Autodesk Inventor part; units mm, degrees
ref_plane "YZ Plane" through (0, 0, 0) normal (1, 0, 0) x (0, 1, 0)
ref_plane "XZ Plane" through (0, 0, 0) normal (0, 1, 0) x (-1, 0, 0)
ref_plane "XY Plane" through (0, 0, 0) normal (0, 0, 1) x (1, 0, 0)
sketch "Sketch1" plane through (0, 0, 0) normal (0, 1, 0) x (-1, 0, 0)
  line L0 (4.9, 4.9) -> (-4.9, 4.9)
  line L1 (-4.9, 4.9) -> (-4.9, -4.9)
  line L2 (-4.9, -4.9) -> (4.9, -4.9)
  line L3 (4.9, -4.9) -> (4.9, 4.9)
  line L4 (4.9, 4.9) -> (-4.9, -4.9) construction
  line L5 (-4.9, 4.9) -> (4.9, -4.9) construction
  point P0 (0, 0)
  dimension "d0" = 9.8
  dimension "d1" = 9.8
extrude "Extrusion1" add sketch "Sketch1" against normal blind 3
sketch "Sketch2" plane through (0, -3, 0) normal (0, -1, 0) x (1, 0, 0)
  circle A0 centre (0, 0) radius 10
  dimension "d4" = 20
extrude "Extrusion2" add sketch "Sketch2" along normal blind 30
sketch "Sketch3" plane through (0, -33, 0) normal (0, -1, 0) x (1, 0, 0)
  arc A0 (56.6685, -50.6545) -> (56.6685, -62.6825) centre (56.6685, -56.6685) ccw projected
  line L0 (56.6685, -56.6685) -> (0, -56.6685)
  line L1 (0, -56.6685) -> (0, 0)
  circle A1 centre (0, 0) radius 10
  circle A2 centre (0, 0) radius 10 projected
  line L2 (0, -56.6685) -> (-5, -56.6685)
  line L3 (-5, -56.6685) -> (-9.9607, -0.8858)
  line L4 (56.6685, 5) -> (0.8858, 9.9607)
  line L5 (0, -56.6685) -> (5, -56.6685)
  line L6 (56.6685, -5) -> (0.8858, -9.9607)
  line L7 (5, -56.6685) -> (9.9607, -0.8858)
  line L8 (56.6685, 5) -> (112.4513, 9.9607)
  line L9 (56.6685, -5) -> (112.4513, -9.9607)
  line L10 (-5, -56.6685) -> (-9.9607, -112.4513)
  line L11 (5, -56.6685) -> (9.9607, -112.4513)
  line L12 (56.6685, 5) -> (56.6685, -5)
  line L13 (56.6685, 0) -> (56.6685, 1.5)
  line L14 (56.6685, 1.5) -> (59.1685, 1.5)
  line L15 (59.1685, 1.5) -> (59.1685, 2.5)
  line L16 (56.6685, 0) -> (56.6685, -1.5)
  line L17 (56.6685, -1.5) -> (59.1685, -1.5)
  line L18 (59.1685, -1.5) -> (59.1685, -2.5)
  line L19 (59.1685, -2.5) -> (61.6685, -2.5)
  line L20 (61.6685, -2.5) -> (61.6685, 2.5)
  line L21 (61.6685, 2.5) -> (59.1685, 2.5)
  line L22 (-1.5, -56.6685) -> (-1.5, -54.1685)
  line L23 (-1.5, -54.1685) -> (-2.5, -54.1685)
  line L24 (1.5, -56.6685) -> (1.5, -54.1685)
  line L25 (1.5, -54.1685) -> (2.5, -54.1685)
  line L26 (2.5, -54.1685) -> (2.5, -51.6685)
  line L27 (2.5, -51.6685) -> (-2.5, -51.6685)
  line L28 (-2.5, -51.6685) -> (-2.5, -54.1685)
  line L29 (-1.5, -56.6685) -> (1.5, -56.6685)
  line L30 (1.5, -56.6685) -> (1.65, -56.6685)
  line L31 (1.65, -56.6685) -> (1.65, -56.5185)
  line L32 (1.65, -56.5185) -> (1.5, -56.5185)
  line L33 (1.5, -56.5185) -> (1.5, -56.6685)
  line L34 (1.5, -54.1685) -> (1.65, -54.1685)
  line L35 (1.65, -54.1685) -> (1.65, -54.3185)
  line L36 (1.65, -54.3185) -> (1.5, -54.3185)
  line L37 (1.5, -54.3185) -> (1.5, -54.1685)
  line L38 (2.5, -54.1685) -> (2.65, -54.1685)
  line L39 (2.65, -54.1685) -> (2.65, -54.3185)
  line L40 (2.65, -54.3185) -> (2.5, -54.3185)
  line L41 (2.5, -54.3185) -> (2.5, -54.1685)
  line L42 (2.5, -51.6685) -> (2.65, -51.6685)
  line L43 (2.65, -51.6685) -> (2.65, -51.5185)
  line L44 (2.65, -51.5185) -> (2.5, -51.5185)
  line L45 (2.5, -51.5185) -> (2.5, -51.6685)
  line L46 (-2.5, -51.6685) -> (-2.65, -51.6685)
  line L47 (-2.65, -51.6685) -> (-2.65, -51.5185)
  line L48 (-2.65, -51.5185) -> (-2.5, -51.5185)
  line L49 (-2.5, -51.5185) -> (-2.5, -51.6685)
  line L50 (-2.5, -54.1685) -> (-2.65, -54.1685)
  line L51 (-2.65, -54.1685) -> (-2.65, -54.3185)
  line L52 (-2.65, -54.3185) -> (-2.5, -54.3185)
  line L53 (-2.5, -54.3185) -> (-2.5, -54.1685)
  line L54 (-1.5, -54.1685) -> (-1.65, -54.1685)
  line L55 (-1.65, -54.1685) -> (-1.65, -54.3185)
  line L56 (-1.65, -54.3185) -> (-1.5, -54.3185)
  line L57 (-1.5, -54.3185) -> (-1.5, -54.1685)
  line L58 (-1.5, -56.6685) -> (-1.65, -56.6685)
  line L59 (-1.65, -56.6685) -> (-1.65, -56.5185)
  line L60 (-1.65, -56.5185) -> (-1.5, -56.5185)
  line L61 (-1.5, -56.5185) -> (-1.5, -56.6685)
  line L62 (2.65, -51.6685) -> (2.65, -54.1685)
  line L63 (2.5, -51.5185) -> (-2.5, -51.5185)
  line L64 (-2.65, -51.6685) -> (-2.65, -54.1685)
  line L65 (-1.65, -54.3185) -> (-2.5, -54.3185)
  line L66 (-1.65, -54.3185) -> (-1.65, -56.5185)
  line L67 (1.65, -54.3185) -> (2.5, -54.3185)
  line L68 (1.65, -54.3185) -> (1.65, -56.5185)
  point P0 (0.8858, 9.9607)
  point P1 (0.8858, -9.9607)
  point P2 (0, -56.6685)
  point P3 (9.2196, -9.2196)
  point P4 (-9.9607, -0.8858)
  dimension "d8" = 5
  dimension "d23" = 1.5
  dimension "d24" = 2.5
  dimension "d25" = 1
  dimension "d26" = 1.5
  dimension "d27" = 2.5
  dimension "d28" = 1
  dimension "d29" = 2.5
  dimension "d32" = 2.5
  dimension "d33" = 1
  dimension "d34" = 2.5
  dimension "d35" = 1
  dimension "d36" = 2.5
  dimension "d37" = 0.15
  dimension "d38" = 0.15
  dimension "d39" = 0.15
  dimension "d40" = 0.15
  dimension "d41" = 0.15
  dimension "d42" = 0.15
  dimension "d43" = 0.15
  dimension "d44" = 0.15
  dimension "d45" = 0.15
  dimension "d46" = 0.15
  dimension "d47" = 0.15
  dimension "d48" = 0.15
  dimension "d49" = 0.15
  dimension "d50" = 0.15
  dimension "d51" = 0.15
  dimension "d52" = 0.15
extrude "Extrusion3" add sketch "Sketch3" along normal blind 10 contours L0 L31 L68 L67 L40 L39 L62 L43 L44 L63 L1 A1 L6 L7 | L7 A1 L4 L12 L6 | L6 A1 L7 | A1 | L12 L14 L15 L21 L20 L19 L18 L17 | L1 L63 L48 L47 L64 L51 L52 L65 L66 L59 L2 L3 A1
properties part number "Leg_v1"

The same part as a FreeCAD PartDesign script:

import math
import FreeCAD as App
import Part
import Sketcher

V = App.Vector
Q = App.Units.Quantity


def add_polygon(sketch, points):
    """Adds a closed chain of lines whose ends are joined by coincident constraints."""
    first, n = sketch.GeometryCount, len(points)
    for a, b in zip(points, points[1:] + points[:1]):
        sketch.addGeometry(Part.LineSegment(App.Vector(*a, 0), App.Vector(*b, 0)), False)
    for i in range(n):
        sketch.addConstraint(Sketcher.Constraint("Coincident", first + i, 2, first + (i + 1) % n, 1))

doc = App.newDocument("Part")
params = doc.addObject("Spreadsheet::Sheet", "Params")
for row, (alias, value) in enumerate([
    ("sketch1_width", "9.8 mm"),
    ("pad1_length", "3 mm"),
    ("sketch2_diameter", "20 mm"),
    ("pad2_length", "30 mm"),
    ("sketch3_width", "1 mm"),
    ("sketch3_height", "5 mm"),
    ("sketch3_width2", "2.5 mm"),
    ("sketch3_radius", "10 mm"),
    ("sketch3_width3", "5.3 mm"),
    ("pad3_length", "10 mm"),
], start=1):
    params.set(f"A{row}", alias)
    params.set(f"B{row}", "=" + value)
    params.setAlias(f"B{row}", alias)

body = doc.addObject("PartDesign::Body", "Body")

# Sketch on XZ plane
sketch1 = body.newObject("Sketcher::SketchObject", "Sketch")
sketch1.AttachmentSupport = (doc.getObject("XZ_Plane"), [""])
sketch1.MapMode = "FlatFace"
add_polygon(sketch1, [(-5, -5), (-5, 5), (5, 5), (5, -5)])  # lines 0-3
sketch1.addConstraint(Sketcher.Constraint("Vertical", 0))
sketch1.addConstraint(Sketcher.Constraint("Horizontal", 1))
sketch1.addConstraint(Sketcher.Constraint("Vertical", 2))
sketch1.addConstraint(Sketcher.Constraint("Horizontal", 3))
sketch1.addConstraint(Sketcher.Constraint("Symmetric", 0, 2, 2, 2, -1, 1))
sketch1.addConstraint(Sketcher.Constraint("Equal", 3, 0))
sketch1.addConstraint(Sketcher.Constraint("DistanceX", 1, 1, 1, 2, Q("9.8 mm")))
sketch1.setExpression("Constraints[10]", "Params.sketch1_width")
pad1 = body.newObject("PartDesign::Pad", "Pad")
pad1.Profile = sketch1
pad1.setExpression("Length", "Params.pad1_length")

# Sketch on XZ plane
sketch2 = body.newObject("Sketcher::SketchObject", "Sketch001")
sketch2.AttachmentSupport = (doc.getObject("XZ_Plane"), [""])
sketch2.MapMode = "FlatFace"
sketch2.AttachmentOffset = App.Placement(V(0, 0, 3), App.Rotation())
sketch2.addGeometry(Part.Circle(V(0, 0, 0), V(0, 0, 1), 10), False)
sketch2.addConstraint(Sketcher.Constraint("Coincident", 0, 3, -1, 1))
sketch2.addConstraint(Sketcher.Constraint("Diameter", 0, Q("20 mm")))
sketch2.setExpression("Constraints[1]", "Params.sketch2_diameter")
pad2 = body.newObject("PartDesign::Pad", "Pad001")
pad2.Profile = sketch2
pad2.setExpression("Length", "Params.pad2_length")

# Sketch on XZ plane
sketch3 = body.newObject("Sketcher::SketchObject", "Sketch002")
sketch3.AttachmentSupport = (doc.getObject("XZ_Plane"), [""])
sketch3.MapMode = "FlatFace"
sketch3.AttachmentOffset = App.Placement(V(0, 0, 33), App.Rotation())
sketch3.addGeometry(Part.LineSegment(V(1.6, -56.7, 0), V(5, -56.7, 0)), False)
sketch3.addGeometry(Part.LineSegment(V(5, -56.7, 0), V(9.2, -9.2, 0)), False)
sketch3.addGeometry(Part.LineSegment(V(9.2, -9.2, 0), V(56.7, -5, 0)), False)
sketch3.addGeometry(Part.LineSegment(V(56.7, -5, 0), V(56.7, -1.5, 0)), False)
sketch3.addGeometry(Part.LineSegment(V(56.7, -1.5, 0), V(59.2, -1.5, 0)), False)
sketch3.addGeometry(Part.LineSegment(V(59.2, -1.5, 0), V(59.2, -2.5, 0)), False)
sketch3.addGeometry(Part.LineSegment(V(59.2, -2.5, 0), V(61.7, -2.5, 0)), False)
sketch3.addGeometry(Part.LineSegment(V(61.7, -2.5, 0), V(61.7, 2.5, 0)), False)
sketch3.addGeometry(Part.LineSegment(V(61.7, 2.5, 0), V(59.2, 2.5, 0)), False)
sketch3.addGeometry(Part.LineSegment(V(59.2, 2.5, 0), V(59.2, 1.5, 0)), False)
sketch3.addGeometry(Part.LineSegment(V(59.2, 1.5, 0), V(56.7, 1.5, 0)), False)
sketch3.addGeometry(Part.LineSegment(V(56.7, 1.5, 0), V(56.7, 5, 0)), False)
sketch3.addGeometry(Part.LineSegment(V(56.7, 5, 0), V(0.9, 10, 0)), False)
sketch3.addGeometry(Part.ArcOfCircle(Part.Circle(V(0, 0, 0), V(0, 0, 1), 10), math.radians(85), math.radians(185)), False)
sketch3.addGeometry(Part.LineSegment(V(-10, -0.9, 0), V(-5, -56.7, 0)), False)
sketch3.addGeometry(Part.LineSegment(V(-5, -56.7, 0), V(-1.6, -56.7, 0)), False)
sketch3.addGeometry(Part.LineSegment(V(-1.6, -56.7, 0), V(-1.6, -54.3, 0)), False)
sketch3.addGeometry(Part.LineSegment(V(-1.6, -54.3, 0), V(-2.6, -54.3, 0)), False)
sketch3.addGeometry(Part.LineSegment(V(-2.6, -54.3, 0), V(-2.6, -51.5, 0)), False)
sketch3.addGeometry(Part.LineSegment(V(-2.6, -51.5, 0), V(2.6, -51.5, 0)), False)
sketch3.addGeometry(Part.LineSegment(V(2.6, -51.5, 0), V(2.6, -54.3, 0)), False)
sketch3.addGeometry(Part.LineSegment(V(2.6, -54.3, 0), V(1.6, -54.3, 0)), False)
sketch3.addGeometry(Part.LineSegment(V(1.6, -54.3, 0), V(1.6, -56.7, 0)), False)
sketch3.addConstraint(Sketcher.Constraint("Coincident", 0, 2, 1, 1))
sketch3.addConstraint(Sketcher.Constraint("Coincident", 1, 2, 2, 1))
sketch3.addConstraint(Sketcher.Constraint("Coincident", 2, 2, 3, 1))
sketch3.addConstraint(Sketcher.Constraint("Coincident", 3, 2, 4, 1))
sketch3.addConstraint(Sketcher.Constraint("Coincident", 4, 2, 5, 1))
sketch3.addConstraint(Sketcher.Constraint("Coincident", 5, 2, 6, 1))
sketch3.addConstraint(Sketcher.Constraint("Coincident", 6, 2, 7, 1))
sketch3.addConstraint(Sketcher.Constraint("Coincident", 7, 2, 8, 1))
sketch3.addConstraint(Sketcher.Constraint("Coincident", 8, 2, 9, 1))
sketch3.addConstraint(Sketcher.Constraint("Coincident", 9, 2, 10, 1))
sketch3.addConstraint(Sketcher.Constraint("Coincident", 10, 2, 11, 1))
sketch3.addConstraint(Sketcher.Constraint("Coincident", 11, 2, 12, 1))
sketch3.addConstraint(Sketcher.Constraint("Tangent", 12, 2, 13, 1))
sketch3.addConstraint(Sketcher.Constraint("Tangent", 13, 2, 14, 1))
sketch3.addConstraint(Sketcher.Constraint("Coincident", 14, 2, 15, 1))
sketch3.addConstraint(Sketcher.Constraint("Coincident", 15, 2, 16, 1))
sketch3.addConstraint(Sketcher.Constraint("Coincident", 16, 2, 17, 1))
sketch3.addConstraint(Sketcher.Constraint("Coincident", 17, 2, 18, 1))
sketch3.addConstraint(Sketcher.Constraint("Coincident", 18, 2, 19, 1))
sketch3.addConstraint(Sketcher.Constraint("Coincident", 19, 2, 20, 1))
sketch3.addConstraint(Sketcher.Constraint("Coincident", 20, 2, 21, 1))
sketch3.addConstraint(Sketcher.Constraint("Coincident", 21, 2, 22, 1))
sketch3.addConstraint(Sketcher.Constraint("Coincident", 22, 2, 0, 1))
sketch3.addConstraint(Sketcher.Constraint("Horizontal", 0))
sketch3.addConstraint(Sketcher.Constraint("Vertical", 3))
sketch3.addConstraint(Sketcher.Constraint("Horizontal", 4))
sketch3.addConstraint(Sketcher.Constraint("Vertical", 5))
sketch3.addConstraint(Sketcher.Constraint("Horizontal", 6))
sketch3.addConstraint(Sketcher.Constraint("Vertical", 7))
sketch3.addConstraint(Sketcher.Constraint("Horizontal", 8))
sketch3.addConstraint(Sketcher.Constraint("Vertical", 9))
sketch3.addConstraint(Sketcher.Constraint("Horizontal", 10))
sketch3.addConstraint(Sketcher.Constraint("Vertical", 11))
sketch3.addConstraint(Sketcher.Constraint("Horizontal", 15))
sketch3.addConstraint(Sketcher.Constraint("Vertical", 16))
sketch3.addConstraint(Sketcher.Constraint("Horizontal", 17))
sketch3.addConstraint(Sketcher.Constraint("Vertical", 18))
sketch3.addConstraint(Sketcher.Constraint("Horizontal", 19))
sketch3.addConstraint(Sketcher.Constraint("Vertical", 20))
sketch3.addConstraint(Sketcher.Constraint("Horizontal", 21))
sketch3.addConstraint(Sketcher.Constraint("Vertical", 22))
sketch3.addConstraint(Sketcher.Constraint("Coincident", 13, 3, -1, 1))
sketch3.addConstraint(Sketcher.Constraint("Symmetric", 0, 2, 14, 2, -2))
sketch3.addConstraint(Sketcher.Constraint("Symmetric", 17, 2, 20, 2, -2))
sketch3.addConstraint(Sketcher.Constraint("Symmetric", 5, 2, 8, 2, -1))
sketch3.addConstraint(Sketcher.Constraint("Symmetric", 3, 2, 10, 2, -1))
sketch3.addConstraint(Sketcher.Constraint("Perpendicular", 1, 12))
sketch3.addConstraint(Sketcher.Constraint("Perpendicular", 2, 14))
sketch3.addConstraint(Sketcher.Constraint("Equal", 4, 6))
sketch3.addConstraint(Sketcher.Constraint("Equal", 0, 15))
sketch3.addConstraint(Sketcher.Constraint("Equal", 21, 5))
sketch3.addConstraint(Sketcher.Constraint("Equal", 3, 11))
sketch3.addConstraint(Sketcher.Constraint("Equal", 1, 2))
sketch3.addConstraint(Sketcher.Constraint("Equal", 12, 14))
sketch3.addConstraint(Sketcher.Constraint("DistanceX", 17, 2, 17, 1, Q("1 mm")))
sketch3.addConstraint(Sketcher.Constraint("DistanceY", 7, 1, 7, 2, Q("5 mm")))
sketch3.addConstraint(Sketcher.Constraint("DistanceX", 4, 1, 4, 2, Q("2.5 mm")))
sketch3.addConstraint(Sketcher.Constraint("DistanceX", -1, 1, 0, 2, Q("5 mm")))
sketch3.addConstraint(Sketcher.Constraint("Radius", 13, Q("10 mm")))
sketch3.addConstraint(Sketcher.Constraint("DistanceX", 19, 1, 19, 2, Q("5.3 mm")))
sketch3.addConstraint(Sketcher.Constraint("DistanceY", 18, 1, 18, 2, Q("2.8 mm")))
sketch3.addConstraint(Sketcher.Constraint("DistanceY", 16, 1, 16, 2, Q("2.35 mm")))
sketch3.addConstraint(Sketcher.Constraint("DistanceY", 0, 2, 1, 2, Q("47.449 mm")))
sketch3.setExpression("Constraints[54]", "Params.sketch3_width")
sketch3.setExpression("Constraints[55]", "Params.sketch3_height")
sketch3.setExpression("Constraints[56]", "Params.sketch3_width2")
sketch3.setExpression("Constraints[58]", "Params.sketch3_radius")
sketch3.setExpression("Constraints[59]", "Params.sketch3_width3")
pad3 = body.newObject("PartDesign::Pad", "Pad002")
pad3.Profile = sketch3
pad3.setExpression("Length", "Params.pad3_length")

doc.recompute()
